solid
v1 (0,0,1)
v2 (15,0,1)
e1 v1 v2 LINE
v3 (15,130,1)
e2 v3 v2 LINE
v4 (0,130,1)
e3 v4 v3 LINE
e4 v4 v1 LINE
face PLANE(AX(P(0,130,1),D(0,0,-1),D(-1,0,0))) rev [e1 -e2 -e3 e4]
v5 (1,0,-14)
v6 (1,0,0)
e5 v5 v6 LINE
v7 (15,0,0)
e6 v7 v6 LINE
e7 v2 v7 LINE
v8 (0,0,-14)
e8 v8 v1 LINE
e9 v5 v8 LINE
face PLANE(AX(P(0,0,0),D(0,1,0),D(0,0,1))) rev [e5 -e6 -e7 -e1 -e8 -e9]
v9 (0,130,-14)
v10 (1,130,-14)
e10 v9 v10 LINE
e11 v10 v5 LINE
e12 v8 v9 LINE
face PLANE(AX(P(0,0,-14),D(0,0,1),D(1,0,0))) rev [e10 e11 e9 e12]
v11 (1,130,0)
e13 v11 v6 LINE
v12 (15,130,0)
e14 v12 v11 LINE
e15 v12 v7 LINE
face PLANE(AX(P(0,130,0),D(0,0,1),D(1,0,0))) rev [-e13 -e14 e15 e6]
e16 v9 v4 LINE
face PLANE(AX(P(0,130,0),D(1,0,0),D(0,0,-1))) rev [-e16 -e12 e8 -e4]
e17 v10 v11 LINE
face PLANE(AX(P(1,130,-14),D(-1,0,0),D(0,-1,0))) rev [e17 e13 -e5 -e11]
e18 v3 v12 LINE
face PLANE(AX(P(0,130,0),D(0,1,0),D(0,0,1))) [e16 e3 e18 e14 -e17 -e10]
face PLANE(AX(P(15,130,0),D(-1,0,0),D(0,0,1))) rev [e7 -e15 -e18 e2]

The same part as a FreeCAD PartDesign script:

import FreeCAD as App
import Part
import Sketcher

doc = App.newDocument("Part")
body = doc.addObject("PartDesign::Body", "Body")

# Sketch on XZ plane
sketch1 = doc.addObject("Sketcher::SketchObject", "Sketch")
body.addObject(sketch1)
sketch1.AttachmentSupport = (doc.XZ_Plane, [""])
sketch1.MapMode = "FlatFace"
sketch1.addGeometry([
    Part.LineSegment(App.Vector(0, 0, 0), App.Vector(0, 1, 0)),
    Part.LineSegment(App.Vector(0, 1, 0), App.Vector(15, 1, 0)),
    Part.LineSegment(App.Vector(15, 1, 0), App.Vector(15, 0, 0)),
    Part.LineSegment(App.Vector(15, 0, 0), App.Vector(0, 0, 0)),
], False)
sketch1.addConstraint([
    Sketcher.Constraint("Coincident", 0, 2, 1, 1),
    Sketcher.Constraint("Coincident", 1, 2, 2, 1),
    Sketcher.Constraint("Coincident", 2, 2, 3, 1),
    Sketcher.Constraint("Coincident", 3, 2, 0, 1),
    Sketcher.Constraint("Vertical", 0),
    Sketcher.Constraint("Horizontal", 1),
    Sketcher.Constraint("Vertical", 2),
    Sketcher.Constraint("Horizontal", 3),
    Sketcher.Constraint("Coincident", 3, 2, -1, 1),
    Sketcher.Constraint("DistanceX", 1, 1, 1, 2, 15.0),
    Sketcher.Constraint("DistanceY", 0, 1, 0, 2, 1.0),
])
pad1 = doc.addObject("PartDesign::Pad", "Pad")
body.addObject(pad1)
pad1.Profile = sketch1
pad1.Length = 130
pad1.Reversed = True

# Sketch on XY plane
sketch2 = doc.addObject("Sketcher::SketchObject", "Sketch001")
body.addObject(sketch2)
sketch2.AttachmentSupport = (doc.XY_Plane, [""])
sketch2.MapMode = "FlatFace"
sketch2.addGeometry([
    Part.LineSegment(App.Vector(1, 130, 0), App.Vector(1, 0, 0)),
    Part.LineSegment(App.Vector(1, 0, 0), App.Vector(0, 0, 0)),
    Part.LineSegment(App.Vector(0, 0, 0), App.Vector(0, 130, 0)),
    Part.LineSegment(App.Vector(0, 130, 0), App.Vector(1, 130, 0)),
], False)
sketch2.addConstraint([
    Sketcher.Constraint("Coincident", 0, 2, 1, 1),
    Sketcher.Constraint("Coincident", 1, 2, 2, 1),
    Sketcher.Constraint("Coincident", 2, 2, 3, 1),
    Sketcher.Constraint("Coincident", 3, 2, 0, 1),
    Sketcher.Constraint("Vertical", 0),
    Sketcher.Constraint("Horizontal", 1),
    Sketcher.Constraint("Vertical", 2),
    Sketcher.Constraint("Horizontal", 3),
    Sketcher.Constraint("Coincident", 1, 2, -1, 1),
    Sketcher.Constraint("DistanceX", 1, 2, 1, 1, 1.0),
    Sketcher.Constraint("DistanceY", 0, 2, 0, 1, 130.0),
])
pad2 = doc.addObject("PartDesign::Pad", "Pad001")
body.addObject(pad2)
pad2.Profile = sketch2
pad2.Length = 14
pad2.Reversed = True

doc.recompute()
